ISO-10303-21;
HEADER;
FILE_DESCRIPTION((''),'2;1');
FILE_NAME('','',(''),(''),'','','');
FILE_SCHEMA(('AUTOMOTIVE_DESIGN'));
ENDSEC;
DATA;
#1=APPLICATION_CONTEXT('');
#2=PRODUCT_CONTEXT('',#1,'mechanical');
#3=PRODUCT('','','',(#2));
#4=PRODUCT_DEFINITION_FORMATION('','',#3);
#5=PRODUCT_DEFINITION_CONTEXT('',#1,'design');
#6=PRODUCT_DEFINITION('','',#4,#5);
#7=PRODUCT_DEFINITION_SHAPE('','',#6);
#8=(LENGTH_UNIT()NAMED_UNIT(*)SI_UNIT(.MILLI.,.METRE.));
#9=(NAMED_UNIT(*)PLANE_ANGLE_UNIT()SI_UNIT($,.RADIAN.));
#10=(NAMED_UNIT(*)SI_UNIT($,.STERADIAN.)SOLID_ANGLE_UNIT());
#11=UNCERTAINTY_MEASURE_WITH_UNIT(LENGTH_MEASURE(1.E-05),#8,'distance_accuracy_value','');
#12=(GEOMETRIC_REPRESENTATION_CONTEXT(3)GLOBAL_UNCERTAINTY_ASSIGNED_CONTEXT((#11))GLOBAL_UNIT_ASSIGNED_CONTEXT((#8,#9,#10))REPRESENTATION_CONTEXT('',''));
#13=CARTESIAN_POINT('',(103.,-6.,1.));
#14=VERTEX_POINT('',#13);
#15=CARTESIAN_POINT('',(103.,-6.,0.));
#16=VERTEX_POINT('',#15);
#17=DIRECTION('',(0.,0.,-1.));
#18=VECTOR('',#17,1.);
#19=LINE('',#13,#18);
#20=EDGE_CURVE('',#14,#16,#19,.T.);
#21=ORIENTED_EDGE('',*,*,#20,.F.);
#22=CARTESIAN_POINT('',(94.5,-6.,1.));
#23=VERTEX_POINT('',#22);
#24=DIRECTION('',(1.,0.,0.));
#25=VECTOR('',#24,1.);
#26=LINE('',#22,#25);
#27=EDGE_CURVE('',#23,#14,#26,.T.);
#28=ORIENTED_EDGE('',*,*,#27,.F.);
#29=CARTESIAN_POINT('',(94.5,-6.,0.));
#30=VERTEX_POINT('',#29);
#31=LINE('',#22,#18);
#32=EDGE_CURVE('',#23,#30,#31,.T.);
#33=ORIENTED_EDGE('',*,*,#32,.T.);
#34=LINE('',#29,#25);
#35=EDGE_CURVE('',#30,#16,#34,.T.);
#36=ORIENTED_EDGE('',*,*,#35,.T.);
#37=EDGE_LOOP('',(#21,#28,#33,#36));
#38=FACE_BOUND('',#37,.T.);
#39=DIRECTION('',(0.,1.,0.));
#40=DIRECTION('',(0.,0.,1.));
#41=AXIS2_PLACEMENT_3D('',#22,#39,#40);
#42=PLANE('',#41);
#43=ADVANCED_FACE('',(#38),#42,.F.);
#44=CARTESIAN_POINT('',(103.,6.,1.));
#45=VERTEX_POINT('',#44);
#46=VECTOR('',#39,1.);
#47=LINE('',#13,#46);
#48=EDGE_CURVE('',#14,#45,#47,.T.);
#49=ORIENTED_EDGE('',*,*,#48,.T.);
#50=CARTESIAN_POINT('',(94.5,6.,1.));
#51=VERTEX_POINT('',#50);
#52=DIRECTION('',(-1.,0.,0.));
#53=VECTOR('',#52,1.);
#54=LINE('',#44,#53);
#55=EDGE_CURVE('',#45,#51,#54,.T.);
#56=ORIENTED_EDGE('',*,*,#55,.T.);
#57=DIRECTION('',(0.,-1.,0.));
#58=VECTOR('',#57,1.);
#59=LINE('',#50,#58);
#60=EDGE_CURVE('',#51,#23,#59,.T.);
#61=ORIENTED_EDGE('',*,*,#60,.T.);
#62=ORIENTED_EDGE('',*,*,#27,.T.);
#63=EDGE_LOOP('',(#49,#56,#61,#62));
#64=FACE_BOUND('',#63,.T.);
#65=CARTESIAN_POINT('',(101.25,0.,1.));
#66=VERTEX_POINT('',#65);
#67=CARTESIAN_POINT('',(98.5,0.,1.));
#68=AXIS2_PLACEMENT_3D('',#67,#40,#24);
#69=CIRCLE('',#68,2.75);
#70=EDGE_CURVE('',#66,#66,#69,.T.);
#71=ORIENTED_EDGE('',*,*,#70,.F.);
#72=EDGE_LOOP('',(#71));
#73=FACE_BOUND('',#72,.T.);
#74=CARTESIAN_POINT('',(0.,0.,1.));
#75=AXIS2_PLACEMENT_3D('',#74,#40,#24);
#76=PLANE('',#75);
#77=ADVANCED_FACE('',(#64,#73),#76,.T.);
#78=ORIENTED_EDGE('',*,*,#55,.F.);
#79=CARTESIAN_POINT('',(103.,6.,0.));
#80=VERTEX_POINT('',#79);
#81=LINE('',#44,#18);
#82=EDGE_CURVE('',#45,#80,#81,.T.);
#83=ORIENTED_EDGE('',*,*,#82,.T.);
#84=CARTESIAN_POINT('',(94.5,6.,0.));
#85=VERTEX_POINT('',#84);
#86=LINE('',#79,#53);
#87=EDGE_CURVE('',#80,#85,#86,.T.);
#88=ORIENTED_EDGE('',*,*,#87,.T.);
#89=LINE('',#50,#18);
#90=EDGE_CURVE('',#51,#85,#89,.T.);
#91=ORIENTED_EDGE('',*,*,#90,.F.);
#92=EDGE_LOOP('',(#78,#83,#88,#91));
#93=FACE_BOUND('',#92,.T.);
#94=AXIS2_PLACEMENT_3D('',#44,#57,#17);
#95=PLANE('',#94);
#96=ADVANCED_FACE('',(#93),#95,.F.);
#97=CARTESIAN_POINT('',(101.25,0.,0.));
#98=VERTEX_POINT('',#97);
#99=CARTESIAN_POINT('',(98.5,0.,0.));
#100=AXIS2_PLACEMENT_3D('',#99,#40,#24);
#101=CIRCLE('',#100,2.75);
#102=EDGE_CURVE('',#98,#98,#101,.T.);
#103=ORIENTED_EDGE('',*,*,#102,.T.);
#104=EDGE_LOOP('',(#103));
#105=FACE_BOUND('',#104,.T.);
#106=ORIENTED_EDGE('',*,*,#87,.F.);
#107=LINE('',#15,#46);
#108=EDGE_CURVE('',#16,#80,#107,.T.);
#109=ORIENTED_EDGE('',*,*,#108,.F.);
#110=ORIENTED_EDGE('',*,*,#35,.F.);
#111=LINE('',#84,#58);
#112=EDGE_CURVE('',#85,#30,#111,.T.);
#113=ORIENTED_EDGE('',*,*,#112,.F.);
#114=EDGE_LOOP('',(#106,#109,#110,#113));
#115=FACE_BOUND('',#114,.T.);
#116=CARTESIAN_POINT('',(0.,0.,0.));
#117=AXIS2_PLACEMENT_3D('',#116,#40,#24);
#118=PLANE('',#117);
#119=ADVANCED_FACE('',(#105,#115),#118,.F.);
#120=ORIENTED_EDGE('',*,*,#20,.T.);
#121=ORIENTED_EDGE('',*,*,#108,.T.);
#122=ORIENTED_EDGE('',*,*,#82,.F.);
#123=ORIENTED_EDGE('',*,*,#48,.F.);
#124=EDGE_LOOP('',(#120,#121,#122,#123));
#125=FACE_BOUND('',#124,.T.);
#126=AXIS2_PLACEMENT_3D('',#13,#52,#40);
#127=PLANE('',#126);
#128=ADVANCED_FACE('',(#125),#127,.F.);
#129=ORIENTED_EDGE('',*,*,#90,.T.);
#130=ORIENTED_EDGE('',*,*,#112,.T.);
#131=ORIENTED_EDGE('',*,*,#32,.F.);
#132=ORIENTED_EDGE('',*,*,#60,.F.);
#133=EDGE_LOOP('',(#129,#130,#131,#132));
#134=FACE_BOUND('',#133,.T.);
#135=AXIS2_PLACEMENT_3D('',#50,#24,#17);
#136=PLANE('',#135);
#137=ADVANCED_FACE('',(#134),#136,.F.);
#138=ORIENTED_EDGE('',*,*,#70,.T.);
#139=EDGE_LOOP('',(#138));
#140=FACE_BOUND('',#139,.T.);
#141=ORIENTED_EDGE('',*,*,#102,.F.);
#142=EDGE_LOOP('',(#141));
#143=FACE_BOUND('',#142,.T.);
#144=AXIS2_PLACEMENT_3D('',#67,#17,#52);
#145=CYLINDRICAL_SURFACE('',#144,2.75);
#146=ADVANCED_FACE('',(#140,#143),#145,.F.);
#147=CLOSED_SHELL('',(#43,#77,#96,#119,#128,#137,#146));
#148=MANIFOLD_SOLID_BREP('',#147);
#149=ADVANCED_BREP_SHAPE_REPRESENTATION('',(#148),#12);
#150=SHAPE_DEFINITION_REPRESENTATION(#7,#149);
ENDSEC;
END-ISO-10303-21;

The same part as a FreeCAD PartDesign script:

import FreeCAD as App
import Part
import Sketcher
from FreeCAD import Vector
Q = App.Units.Quantity


def add_polygon(sketch, points):
    """Adds a closed chain of lines whose ends are joined by coincident constraints."""
    first, n = sketch.GeometryCount, len(points)
    for a, b in zip(points, points[1:] + points[:1]):
        sketch.addGeometry(Part.LineSegment(App.Vector(*a, 0), App.Vector(*b, 0)), False)
    for i in range(n):
        sketch.addConstraint(Sketcher.Constraint("Coincident", first + i, 2, first + (i + 1) % n, 1))

doc = App.newDocument("Part")
body = doc.addObject("PartDesign::Body", "Body")

sketch1 = body.newObject("Sketcher::SketchObject", "Sketch")
sketch1.AttachmentSupport = (doc.getObject("XY_Plane"), [""])
sketch1.MapMode = "FlatFace"
add_polygon(sketch1, [(94.5, 6), (94.5, -6), (103, -6), (103, 6)])
sketch1.addGeometry(Part.Circle(Vector(98.5, 0, 0), Vector(0, 0, 1), 2.75), False)
sketch1.addConstraint([
    Sketcher.Constraint("Vertical", 0),
    Sketcher.Constraint("Horizontal", 1),
    Sketcher.Constraint("Vertical", 2),
    Sketcher.Constraint("Horizontal", 3),
    Sketcher.Constraint("PointOnObject", 4, 3, -1),
    Sketcher.Constraint("Diameter", 4, Q("5.5 mm")),
    Sketcher.Constraint("DistanceY", 0, 2, 0, 1, Q("12 mm")),
    Sketcher.Constraint("DistanceX", 1, 1, 1, 2, Q("8.5 mm")),
    Sketcher.Constraint("DistanceY", 0, 2, -1, 1, Q("6 mm")),
    Sketcher.Constraint("DistanceX", -1, 1, 1, 2, Q("103 mm")),
    Sketcher.Constraint("DistanceX", 0, 2, 4, 3, Q("4 mm")),
])
pad1 = body.newObject("PartDesign::Pad", "Pad")
pad1.Profile = sketch1
pad1.Length = 1

doc.recompute()
